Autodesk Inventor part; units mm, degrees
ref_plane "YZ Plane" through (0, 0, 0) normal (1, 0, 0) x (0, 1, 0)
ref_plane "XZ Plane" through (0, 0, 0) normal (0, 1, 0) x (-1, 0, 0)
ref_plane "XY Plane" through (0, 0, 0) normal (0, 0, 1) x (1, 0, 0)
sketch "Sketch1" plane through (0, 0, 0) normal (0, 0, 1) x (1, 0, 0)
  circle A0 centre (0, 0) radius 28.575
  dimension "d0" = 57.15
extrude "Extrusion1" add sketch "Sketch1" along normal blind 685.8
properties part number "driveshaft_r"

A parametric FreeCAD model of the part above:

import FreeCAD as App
import Part
import Sketcher

V = App.Vector
Q = App.Units.Quantity

doc = App.newDocument("Part")
body = doc.addObject("PartDesign::Body", "Body")

sketch1 = body.newObject("Sketcher::SketchObject", "Sketch")
sketch1.AttachmentSupport = (doc.getObject("XY_Plane"), [""])
sketch1.MapMode = "FlatFace"
sketch1.addGeometry(Part.Circle(V(0, 0, 0), V(0, 0, 1), 28.575), False)
sketch1.addConstraint([
    Sketcher.Constraint("Coincident", 0, 3, -1, 1),
    Sketcher.Constraint("Diameter", 0, Q("2.25 in")),
])
pad1 = body.newObject("PartDesign::Pad", "Pad")
pad1.Profile = sketch1
pad1.Length = Q("27 in")

doc.recompute()
